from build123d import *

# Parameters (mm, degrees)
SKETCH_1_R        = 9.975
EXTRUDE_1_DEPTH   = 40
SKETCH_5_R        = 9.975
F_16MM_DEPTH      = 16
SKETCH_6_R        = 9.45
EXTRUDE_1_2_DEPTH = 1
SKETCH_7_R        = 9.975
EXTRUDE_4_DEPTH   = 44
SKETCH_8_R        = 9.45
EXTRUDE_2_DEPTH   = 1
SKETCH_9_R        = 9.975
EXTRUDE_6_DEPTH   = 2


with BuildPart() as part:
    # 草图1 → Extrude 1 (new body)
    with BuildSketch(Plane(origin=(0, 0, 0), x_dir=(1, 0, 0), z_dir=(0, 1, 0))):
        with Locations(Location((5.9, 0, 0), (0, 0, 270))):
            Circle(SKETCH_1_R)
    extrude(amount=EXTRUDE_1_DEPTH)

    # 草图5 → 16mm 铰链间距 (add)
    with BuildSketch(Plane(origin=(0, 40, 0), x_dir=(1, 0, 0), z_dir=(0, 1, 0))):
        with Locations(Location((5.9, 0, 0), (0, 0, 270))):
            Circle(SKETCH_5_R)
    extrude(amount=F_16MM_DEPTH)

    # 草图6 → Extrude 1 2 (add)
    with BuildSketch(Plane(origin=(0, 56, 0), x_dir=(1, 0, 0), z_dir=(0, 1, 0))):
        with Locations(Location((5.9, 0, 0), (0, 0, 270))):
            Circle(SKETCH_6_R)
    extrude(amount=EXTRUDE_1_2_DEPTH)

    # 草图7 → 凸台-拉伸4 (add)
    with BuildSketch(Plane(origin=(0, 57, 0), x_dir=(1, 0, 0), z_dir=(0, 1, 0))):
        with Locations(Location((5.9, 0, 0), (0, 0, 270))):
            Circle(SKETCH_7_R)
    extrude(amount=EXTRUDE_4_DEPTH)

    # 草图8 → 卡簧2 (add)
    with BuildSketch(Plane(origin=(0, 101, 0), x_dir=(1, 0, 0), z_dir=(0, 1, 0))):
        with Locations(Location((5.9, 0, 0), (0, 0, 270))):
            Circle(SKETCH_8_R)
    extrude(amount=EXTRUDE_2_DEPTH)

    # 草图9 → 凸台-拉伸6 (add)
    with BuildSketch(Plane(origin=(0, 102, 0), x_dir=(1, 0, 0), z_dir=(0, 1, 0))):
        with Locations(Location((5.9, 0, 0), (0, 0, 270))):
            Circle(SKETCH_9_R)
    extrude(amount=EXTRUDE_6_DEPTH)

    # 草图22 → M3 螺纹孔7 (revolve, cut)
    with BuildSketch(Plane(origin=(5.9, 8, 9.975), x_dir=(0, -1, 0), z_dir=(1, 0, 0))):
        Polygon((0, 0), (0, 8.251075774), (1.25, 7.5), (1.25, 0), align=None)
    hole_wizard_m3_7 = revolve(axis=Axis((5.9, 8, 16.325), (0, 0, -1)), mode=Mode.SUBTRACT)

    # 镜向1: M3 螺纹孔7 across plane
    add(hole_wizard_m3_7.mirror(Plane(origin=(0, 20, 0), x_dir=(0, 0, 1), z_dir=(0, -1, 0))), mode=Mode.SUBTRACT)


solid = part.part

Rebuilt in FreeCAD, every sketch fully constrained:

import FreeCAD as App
import Part
import Sketcher

V = App.Vector
Q = App.Units.Quantity


def add_polygon(sketch, points):
    """Adds a closed chain of lines whose ends are joined by coincident constraints."""
    first, n = sketch.GeometryCount, len(points)
    for a, b in zip(points, points[1:] + points[:1]):
        sketch.addGeometry(Part.LineSegment(App.Vector(*a, 0), App.Vector(*b, 0)), False)
    for i in range(n):
        sketch.addConstraint(Sketcher.Constraint("Coincident", first + i, 2, first + (i + 1) % n, 1))

doc = App.newDocument("Part")
body = doc.addObject("PartDesign::Body", "Body")

# Sketch on XZ plane
sketch1 = doc.addObject("Sketcher::SketchObject", "Sketch")
body.addObject(sketch1)
sketch1.AttachmentSupport = (doc.XZ_Plane, [""])
sketch1.MapMode = "FlatFace"
sketch1.addGeometry(Part.Circle(V(5.9, 0, 0), V(0, 0, 1), 9.975), False)
sketch1.addConstraint(Sketcher.Constraint("PointOnObject", 0, 3, -1))
sketch1.addConstraint(Sketcher.Constraint("Diameter", 0, Q("19.95 mm")))
sketch1.addConstraint(Sketcher.Constraint("DistanceX", -1, 1, 0, 3, Q("5.9 mm")))
pad1 = doc.addObject("PartDesign::Pad", "Pad")
body.addObject(pad1)
pad1.Profile = sketch1
pad1.Length = 40
pad1.Reversed = True

# Sketch on XZ plane
sketch2 = doc.addObject("Sketcher::SketchObject", "Sketch001")
body.addObject(sketch2)
sketch2.AttachmentSupport = (doc.XZ_Plane, [""])
sketch2.MapMode = "FlatFace"
sketch2.AttachmentOffset = App.Placement(V(0, 0, -40), App.Rotation())
sketch2.addGeometry(Part.Circle(V(5.9, 0, 0), V(0, 0, 1), 9.975), False)
sketch2.addConstraint(Sketcher.Constraint("PointOnObject", 0, 3, -1))
sketch2.addConstraint(Sketcher.Constraint("Diameter", 0, Q("19.95 mm")))
sketch2.addConstraint(Sketcher.Constraint("DistanceX", -1, 1, 0, 3, Q("5.9 mm")))
pad2 = doc.addObject("PartDesign::Pad", "Pad001")
body.addObject(pad2)
pad2.Profile = sketch2
pad2.Length = 16
pad2.Reversed = True

# Sketch on XZ plane
sketch3 = doc.addObject("Sketcher::SketchObject", "Sketch002")
body.addObject(sketch3)
sketch3.AttachmentSupport = (doc.XZ_Plane, [""])
sketch3.MapMode = "FlatFace"
sketch3.AttachmentOffset = App.Placement(V(0, 0, -56), App.Rotation())
sketch3.addGeometry(Part.Circle(V(5.9, 0, 0), V(0, 0, 1), 9.45), False)
sketch3.addConstraint(Sketcher.Constraint("PointOnObject", 0, 3, -1))
sketch3.addConstraint(Sketcher.Constraint("Diameter", 0, Q("18.9 mm")))
sketch3.addConstraint(Sketcher.Constraint("DistanceX", -1, 1, 0, 3, Q("5.9 mm")))
pad3 = doc.addObject("PartDesign::Pad", "Pad002")
body.addObject(pad3)
pad3.Profile = sketch3
pad3.Length = 1
pad3.Reversed = True

# Sketch on XZ plane
sketch4 = doc.addObject("Sketcher::SketchObject", "Sketch003")
body.addObject(sketch4)
sketch4.AttachmentSupport = (doc.XZ_Plane, [""])
sketch4.MapMode = "FlatFace"
sketch4.AttachmentOffset = App.Placement(V(0, 0, -57), App.Rotation())
sketch4.addGeometry(Part.Circle(V(5.9, 0, 0), V(0, 0, 1), 9.975), False)
sketch4.addConstraint(Sketcher.Constraint("PointOnObject", 0, 3, -1))
sketch4.addConstraint(Sketcher.Constraint("Diameter", 0, Q("19.95 mm")))
sketch4.addConstraint(Sketcher.Constraint("DistanceX", -1, 1, 0, 3, Q("5.9 mm")))
pad4 = doc.addObject("PartDesign::Pad", "Pad003")
body.addObject(pad4)
pad4.Profile = sketch4
pad4.Length = 44
pad4.Reversed = True

# Sketch on XZ plane
sketch5 = doc.addObject("Sketcher::SketchObject", "Sketch004")
body.addObject(sketch5)
sketch5.AttachmentSupport = (doc.XZ_Plane, [""])
sketch5.MapMode = "FlatFace"
sketch5.AttachmentOffset = App.Placement(V(0, 0, -101), App.Rotation())
sketch5.addGeometry(Part.Circle(V(5.9, 0, 0), V(0, 0, 1), 9.45), False)
sketch5.addConstraint(Sketcher.Constraint("PointOnObject", 0, 3, -1))
sketch5.addConstraint(Sketcher.Constraint("Diameter", 0, Q("18.9 mm")))
sketch5.addConstraint(Sketcher.Constraint("DistanceX", -1, 1, 0, 3, Q("5.9 mm")))
pad5 = doc.addObject("PartDesign::Pad", "Pad004")
body.addObject(pad5)
pad5.Profile = sketch5
pad5.Length = 1
pad5.Reversed = True

# Sketch on XZ plane
sketch6 = doc.addObject("Sketcher::SketchObject", "Sketch005")
body.addObject(sketch6)
sketch6.AttachmentSupport = (doc.XZ_Plane, [""])
sketch6.MapMode = "FlatFace"
sketch6.AttachmentOffset = App.Placement(V(0, 0, -102), App.Rotation())
sketch6.addGeometry(Part.Circle(V(5.9, 0, 0), V(0, 0, 1), 9.975), False)
sketch6.addConstraint(Sketcher.Constraint("PointOnObject", 0, 3, -1))
sketch6.addConstraint(Sketcher.Constraint("Diameter", 0, Q("19.95 mm")))
sketch6.addConstraint(Sketcher.Constraint("DistanceX", -1, 1, 0, 3, Q("5.9 mm")))
pad6 = doc.addObject("PartDesign::Pad", "Pad005")
body.addObject(pad6)
pad6.Profile = sketch6
pad6.Length = 2
pad6.Reversed = True

# Sketch on YZ plane
sketch7 = doc.addObject("Sketcher::SketchObject", "Sketch006")
body.addObject(sketch7)
sketch7.AttachmentSupport = (doc.YZ_Plane, [""])
sketch7.MapMode = "FlatFace"
sketch7.AttachmentOffset = App.Placement(V(0, 0, 5.9), App.Rotation())
add_polygon(sketch7, [(8, 1.723924), (8, 9.975), (6.75, 9.975), (6.75, 2.475)])  # lines 0-3
sketch7.addGeometry(Part.LineSegment(V(8, 9.975, 0), V(8, 1.723924, 0)), True)  # axis
sketch7.addConstraint(Sketcher.Constraint("Vertical", 0))
sketch7.addConstraint(Sketcher.Constraint("Horizontal", 1))
sketch7.addConstraint(Sketcher.Constraint("Vertical", 2))
sketch7.addConstraint(Sketcher.Constraint("Vertical", 4))
sketch7.addConstraint(Sketcher.Constraint("Coincident", 4, 1, 0, 2))
sketch7.addConstraint(Sketcher.Constraint("Equal", 0, 4))
sketch7.addConstraint(Sketcher.Constraint("Angle", 3, Q("-31 deg")))
sketch7.addConstraint(Sketcher.Constraint("DistanceY", 2, 2, 2, 1, Q("7.5 mm")))
sketch7.addConstraint(Sketcher.Constraint("DistanceX", -1, 1, 0, 2, Q("8 mm")))
sketch7.addConstraint(Sketcher.Constraint("DistanceX", 1, 2, 1, 1, Q("1.25 mm")))
sketch7.addConstraint(Sketcher.Constraint("DistanceY", -1, 1, 0, 2, Q("9.975 mm")))
groove = doc.addObject("PartDesign::Groove", "Groove")
body.addObject(groove)
groove.Profile = sketch7
groove.ReferenceAxis = (sketch7, ["Axis0"])
groove.Angle = 360
doc.recompute()

datumplane = doc.addObject("PartDesign::Plane", "DatumPlane")
body.addObject(datumplane)
datumplane.AttachmentSupport = (doc.XZ_Plane, [""])
datumplane.MapMode = "FlatFace"
datumplane.AttachmentOffset = App.Placement(V(0, 0, -20), App.Rotation())
mirrored = doc.addObject("PartDesign::Mirrored", "Mirrored")
body.addObject(mirrored)
mirrored.Originals = [groove]
mirrored.MirrorPlane = (datumplane, [""])
body.Tip = mirrored

doc.recompute()
